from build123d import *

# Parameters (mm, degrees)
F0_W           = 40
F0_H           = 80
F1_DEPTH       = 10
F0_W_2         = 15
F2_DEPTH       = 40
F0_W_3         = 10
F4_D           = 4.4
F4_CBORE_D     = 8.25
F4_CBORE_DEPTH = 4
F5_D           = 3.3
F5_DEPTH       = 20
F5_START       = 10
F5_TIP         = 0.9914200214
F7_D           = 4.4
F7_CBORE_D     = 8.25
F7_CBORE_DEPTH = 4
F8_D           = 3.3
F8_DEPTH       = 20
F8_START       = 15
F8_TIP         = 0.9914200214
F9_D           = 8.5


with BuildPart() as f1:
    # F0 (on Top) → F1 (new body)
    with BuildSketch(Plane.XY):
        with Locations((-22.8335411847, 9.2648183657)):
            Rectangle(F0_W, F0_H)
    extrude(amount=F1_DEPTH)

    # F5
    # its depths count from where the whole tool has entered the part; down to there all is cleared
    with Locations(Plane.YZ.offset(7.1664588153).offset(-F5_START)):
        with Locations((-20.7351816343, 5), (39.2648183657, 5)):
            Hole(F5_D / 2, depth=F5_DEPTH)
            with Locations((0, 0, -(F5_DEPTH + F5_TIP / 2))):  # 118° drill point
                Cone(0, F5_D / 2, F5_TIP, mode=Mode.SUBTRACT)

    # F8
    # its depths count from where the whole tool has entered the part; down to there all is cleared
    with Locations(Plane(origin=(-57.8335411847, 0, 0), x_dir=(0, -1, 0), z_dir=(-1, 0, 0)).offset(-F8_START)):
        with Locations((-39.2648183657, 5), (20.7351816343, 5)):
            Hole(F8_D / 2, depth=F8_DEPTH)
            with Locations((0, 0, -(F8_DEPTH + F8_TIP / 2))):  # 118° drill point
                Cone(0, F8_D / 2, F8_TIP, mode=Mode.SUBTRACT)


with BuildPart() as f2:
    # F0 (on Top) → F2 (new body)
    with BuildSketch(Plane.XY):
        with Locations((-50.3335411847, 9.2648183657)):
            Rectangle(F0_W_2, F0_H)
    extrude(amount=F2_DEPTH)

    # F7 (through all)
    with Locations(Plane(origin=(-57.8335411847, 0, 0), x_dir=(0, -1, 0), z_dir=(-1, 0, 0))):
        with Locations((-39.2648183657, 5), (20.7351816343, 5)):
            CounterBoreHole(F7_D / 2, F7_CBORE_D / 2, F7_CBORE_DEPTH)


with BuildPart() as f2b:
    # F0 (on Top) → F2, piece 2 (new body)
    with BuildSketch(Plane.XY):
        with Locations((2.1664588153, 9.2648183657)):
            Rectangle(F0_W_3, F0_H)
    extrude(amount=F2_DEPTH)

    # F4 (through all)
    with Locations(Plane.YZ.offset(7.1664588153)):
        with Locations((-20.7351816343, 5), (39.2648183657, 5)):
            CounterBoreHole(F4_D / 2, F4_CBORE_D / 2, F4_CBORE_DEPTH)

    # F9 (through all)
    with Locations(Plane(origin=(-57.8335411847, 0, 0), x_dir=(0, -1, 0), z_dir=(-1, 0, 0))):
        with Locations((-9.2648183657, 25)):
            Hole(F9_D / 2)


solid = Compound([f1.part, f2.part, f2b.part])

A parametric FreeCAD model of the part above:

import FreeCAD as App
import Part
import Sketcher

V = App.Vector


def add_polygon(sketch, points):
    """Adds a closed chain of lines whose ends are joined by coincident constraints."""
    first, n = sketch.GeometryCount, len(points)
    for a, b in zip(points, points[1:] + points[:1]):
        sketch.addGeometry(Part.LineSegment(App.Vector(*a, 0), App.Vector(*b, 0)), False)
    for i in range(n):
        sketch.addConstraint(Sketcher.Constraint("Coincident", first + i, 2, first + (i + 1) % n, 1))

doc = App.newDocument("Part")
params = doc.addObject("Spreadsheet::Sheet", "Params")
for row, (alias, value) in enumerate([
    ("sketch1_width", "40 mm"),
    ("sketch1_height", "80 mm"),
    ("pad1_length", "10 mm"),
    ("sketch2_diameter", "3.3 mm"),
    ("hole_diameter", "3.3 mm"),
    ("hole_depth", "20 mm"),
    ("sketch3_diameter", "3.3 mm"),
    ("hole2_diameter", "3.3 mm"),
    ("hole2_depth", "20 mm"),
    ("sketch4_width", "15 mm"),
    ("sketch4_height", "80 mm"),
    ("pad2_length", "40 mm"),
    ("sketch5_diameter", "4.4 mm"),
    ("hole3_diameter", "4.4 mm"),
    ("hole3_cbore_diameter", "8.25 mm"),
    ("hole3_cbore_depth", "4 mm"),
    ("sketch6_width", "10 mm"),
    ("sketch6_height", "80 mm"),
    ("pad3_length", "40 mm"),
    ("sketch7_diameter", "4.4 mm"),
    ("hole4_diameter", "4.4 mm"),
    ("hole4_cbore_diameter", "8.25 mm"),
    ("hole4_cbore_depth", "4 mm"),
    ("sketch8_diameter", "8.5 mm"),
    ("hole5_diameter", "8.5 mm"),
], start=1):
    params.set(f"A{row}", alias)
    params.set(f"B{row}", "=" + value)
    params.setAlias(f"B{row}", alias)

body = doc.addObject("PartDesign::Body", "Body")

sketch1 = doc.addObject("Sketcher::SketchObject", "Sketch")
body.addObject(sketch1)
sketch1.AttachmentSupport = (doc.XY_Plane, [""])
sketch1.MapMode = "FlatFace"
add_polygon(sketch1, [(-43, 49), (-43, -31), (-3, -31), (-3, 49)])
sketch1.addConstraint([
    Sketcher.Constraint("Vertical", 0),
    Sketcher.Constraint("Horizontal", 1),
    Sketcher.Constraint("Vertical", 2),
    Sketcher.Constraint("Horizontal", 3),
    Sketcher.Constraint("DistanceX", 1, 1, 1, 2, 40.0),
    Sketcher.Constraint("DistanceY", 0, 2, 0, 1, 80.0),
    Sketcher.Constraint("DistanceX", 0, 2, -1, 1, 42.833541),
    Sketcher.Constraint("DistanceY", 0, 2, -1, 1, 30.735182),
])
sketch1.setExpression("Constraints[8]", "Params.sketch1_width")
sketch1.setExpression("Constraints[9]", "Params.sketch1_height")
pad1 = doc.addObject("PartDesign::Pad", "Pad")
body.addObject(pad1)
pad1.Profile = sketch1
pad1.setExpression("Length", "Params.pad1_length")

sketch2 = doc.addObject("Sketcher::SketchObject", "Sketch001")
body.addObject(sketch2)
sketch2.AttachmentSupport = (doc.YZ_Plane, [""])
sketch2.MapMode = "FlatFace"
sketch2.AttachmentOffset = App.Placement(V(0, 0, -2.833541), App.Rotation())
sketch2.addGeometry([
    Part.Circle(V(-20.7, 5, 0), V(0, 0, 1), 1.6),
    Part.Circle(V(39.3, 5, 0), V(0, 0, 1), 1.6),
], False)
sketch2.addConstraint([
    Sketcher.Constraint("Equal", 0, 1),
    Sketcher.Constraint("Horizontal", 0, 3, 1, 3),
    Sketcher.Constraint("Diameter", 0, 3.3),
    Sketcher.Constraint("DistanceY", -1, 1, 0, 3, 5.0),
    Sketcher.Constraint("DistanceX", 0, 3, 1, 3, 60.0),
    Sketcher.Constraint("DistanceX", 0, 3, -1, 1, 20.735182),
])
sketch2.setExpression("Constraints[2]", "Params.sketch2_diameter")
doc.recompute()
hole = doc.addObject("PartDesign::Hole", "Hole")
body.addObject(hole)
hole.Profile = sketch2
hole.ThreadType = "None"
hole.setExpression("Diameter", "Params.hole_diameter")
hole.DepthType = "Dimension"
hole.setExpression("Depth", "Params.hole_depth")
hole.DrillPoint = "Angled"
hole.DrillPointAngle = 118

sketch3 = doc.addObject("Sketcher::SketchObject", "Sketch002")
body.addObject(sketch3)
sketch3.AttachmentSupport = (doc.YZ_Plane, [""])
sketch3.MapMode = "FlatFace"
sketch3.AttachmentOffset = App.Placement(V(0, 0, -42.833541), App.Rotation())
sketch3.addGeometry([
    Part.Circle(V(39.3, 5, 0), V(0, 0, 1), 1.6),
    Part.Circle(V(-20.7, 5, 0), V(0, 0, 1), 1.6),
], False)
sketch3.addConstraint([
    Sketcher.Constraint("Equal", 0, 1),
    Sketcher.Constraint("Horizontal", 0, 3, 1, 3),
    Sketcher.Constraint("Diameter", 0, 3.3),
    Sketcher.Constraint("DistanceY", -1, 1, 0, 3, 5.0),
    Sketcher.Constraint("DistanceX", 1, 3, 0, 3, 60.0),
    Sketcher.Constraint("DistanceX", -1, 1, 0, 3, 39.264818),
])
sketch3.setExpression("Constraints[2]", "Params.sketch3_diameter")
doc.recompute()
hole2 = doc.addObject("PartDesign::Hole", "Hole001")
body.addObject(hole2)
hole2.Profile = sketch3
hole2.ThreadType = "None"
hole2.setExpression("Diameter", "Params.hole2_diameter")
hole2.DepthType = "Dimension"
hole2.setExpression("Depth", "Params.hole2_depth")
hole2.DrillPoint = "Angled"
hole2.DrillPointAngle = 118
hole2.Reversed = True
body2 = doc.addObject("PartDesign::Body", "Body001")

sketch4 = doc.addObject("Sketcher::SketchObject", "Sketch003")
body2.addObject(sketch4)
sketch4.AttachmentSupport = (doc.getObject("XY_Plane001"), [""])
sketch4.MapMode = "FlatFace"
add_polygon(sketch4, [(-58, 49), (-58, -31), (-43, -31), (-43, 49)])
sketch4.addConstraint([
    Sketcher.Constraint("Vertical", 0),
    Sketcher.Constraint("Horizontal", 1),
    Sketcher.Constraint("Vertical", 2),
    Sketcher.Constraint("Horizontal", 3),
    Sketcher.Constraint("DistanceX", 1, 1, 1, 2, 15.0),
    Sketcher.Constraint("DistanceY", 0, 2, 0, 1, 80.0),
    Sketcher.Constraint("DistanceX", 0, 2, -1, 1, 57.833541),
    Sketcher.Constraint("DistanceY", 0, 2, -1, 1, 30.735182),
])
sketch4.setExpression("Constraints[8]", "Params.sketch4_width")
sketch4.setExpression("Constraints[9]", "Params.sketch4_height")
pad2 = doc.addObject("PartDesign::Pad", "Pad001")
body2.addObject(pad2)
pad2.Profile = sketch4
pad2.setExpression("Length", "Params.pad2_length")

sketch5 = doc.addObject("Sketcher::SketchObject", "Sketch004")
body2.addObject(sketch5)
sketch5.AttachmentSupport = (doc.getObject("YZ_Plane001"), [""])
sketch5.MapMode = "FlatFace"
sketch5.AttachmentOffset = App.Placement(V(0, 0, -57.833541), App.Rotation())
sketch5.addGeometry([
    Part.Circle(V(39.3, 5, 0), V(0, 0, 1), 2.2),
    Part.Circle(V(-20.7, 5, 0), V(0, 0, 1), 2.2),
], False)
sketch5.addConstraint([
    Sketcher.Constraint("Equal", 0, 1),
    Sketcher.Constraint("Horizontal", 0, 3, 1, 3),
    Sketcher.Constraint("Diameter", 0, 4.4),
    Sketcher.Constraint("DistanceY", -1, 1, 0, 3, 5.0),
    Sketcher.Constraint("DistanceX", 1, 3, 0, 3, 60.0),
    Sketcher.Constraint("DistanceX", -1, 1, 0, 3, 39.264818),
])
sketch5.setExpression("Constraints[2]", "Params.sketch5_diameter")
doc.recompute()
hole3 = doc.addObject("PartDesign::Hole", "Hole002")
body2.addObject(hole3)
hole3.Profile = sketch5
hole3.ThreadType = "None"
hole3.setExpression("Diameter", "Params.hole3_diameter")
hole3.DepthType = "ThroughAll"
hole3.HoleCutType = "Counterbore"
hole3.setExpression("HoleCutDiameter", "Params.hole3_cbore_diameter")
hole3.setExpression("HoleCutDepth", "Params.hole3_cbore_depth")
hole3.Reversed = True
body3 = doc.addObject("PartDesign::Body", "Body002")

sketch6 = doc.addObject("Sketcher::SketchObject", "Sketch005")
body3.addObject(sketch6)
sketch6.AttachmentSupport = (doc.getObject("XY_Plane002"), [""])
sketch6.MapMode = "FlatFace"
add_polygon(sketch6, [(-3, 49), (-3, -31), (7, -31), (7, 49)])
sketch6.addConstraint([
    Sketcher.Constraint("Vertical", 0),
    Sketcher.Constraint("Horizontal", 1),
    Sketcher.Constraint("Vertical", 2),
    Sketcher.Constraint("Horizontal", 3),
    Sketcher.Constraint("DistanceX", 1, 1, 1, 2, 10.0),
    Sketcher.Constraint("DistanceY", 0, 2, 0, 1, 80.0),
    Sketcher.Constraint("DistanceX", 0, 2, -1, 1, 2.833541),
    Sketcher.Constraint("DistanceY", 0, 2, -1, 1, 30.735182),
])
sketch6.setExpression("Constraints[8]", "Params.sketch6_width")
sketch6.setExpression("Constraints[9]", "Params.sketch6_height")
pad3 = doc.addObject("PartDesign::Pad", "Pad002")
body3.addObject(pad3)
pad3.Profile = sketch6
pad3.setExpression("Length", "Params.pad3_length")

sketch7 = doc.addObject("Sketcher::SketchObject", "Sketch006")
body3.addObject(sketch7)
sketch7.AttachmentSupport = (doc.getObject("YZ_Plane002"), [""])
sketch7.MapMode = "FlatFace"
sketch7.AttachmentOffset = App.Placement(V(0, 0, 7.166459), App.Rotation())
sketch7.addGeometry([
    Part.Circle(V(-20.7, 5, 0), V(0, 0, 1), 2.2),
    Part.Circle(V(39.3, 5, 0), V(0, 0, 1), 2.2),
], False)
sketch7.addConstraint([
    Sketcher.Constraint("Equal", 0, 1),
    Sketcher.Constraint("Horizontal", 0, 3, 1, 3),
    Sketcher.Constraint("Diameter", 0, 4.4),
    Sketcher.Constraint("DistanceY", -1, 1, 0, 3, 5.0),
    Sketcher.Constraint("DistanceX", 0, 3, 1, 3, 60.0),
    Sketcher.Constraint("DistanceX", 0, 3, -1, 1, 20.735182),
])
sketch7.setExpression("Constraints[2]", "Params.sketch7_diameter")
doc.recompute()
hole4 = doc.addObject("PartDesign::Hole", "Hole003")
body3.addObject(hole4)
hole4.Profile = sketch7
hole4.ThreadType = "None"
hole4.setExpression("Diameter", "Params.hole4_diameter")
hole4.DepthType = "ThroughAll"
hole4.HoleCutType = "Counterbore"
hole4.setExpression("HoleCutDiameter", "Params.hole4_cbore_diameter")
hole4.setExpression("HoleCutDepth", "Params.hole4_cbore_depth")

sketch8 = doc.addObject("Sketcher::SketchObject", "Sketch007")
body3.addObject(sketch8)
sketch8.AttachmentSupport = (doc.getObject("YZ_Plane002"), [""])
sketch8.MapMode = "FlatFace"
sketch8.AttachmentOffset = App.Placement(V(0, 0, -57.833541), App.Rotation())
sketch8.addGeometry(Part.Circle(V(9.3, 25, 0), V(0, 0, 1), 4.2), False)
sketch8.addConstraint([
    Sketcher.Constraint("Diameter", 0, 8.5),
    Sketcher.Constraint("DistanceY", -1, 1, 0, 3, 25.0),
    Sketcher.Constraint("DistanceX", -1, 1, 0, 3, 9.264818),
])
sketch8.setExpression("Constraints[0]", "Params.sketch8_diameter")
doc.recompute()
hole5 = doc.addObject("PartDesign::Hole", "Hole004")
body3.addObject(hole5)
hole5.Profile = sketch8
hole5.ThreadType = "None"
hole5.setExpression("Diameter", "Params.hole5_diameter")
hole5.DepthType = "ThroughAll"
hole5.Reversed = True

doc.recompute()
